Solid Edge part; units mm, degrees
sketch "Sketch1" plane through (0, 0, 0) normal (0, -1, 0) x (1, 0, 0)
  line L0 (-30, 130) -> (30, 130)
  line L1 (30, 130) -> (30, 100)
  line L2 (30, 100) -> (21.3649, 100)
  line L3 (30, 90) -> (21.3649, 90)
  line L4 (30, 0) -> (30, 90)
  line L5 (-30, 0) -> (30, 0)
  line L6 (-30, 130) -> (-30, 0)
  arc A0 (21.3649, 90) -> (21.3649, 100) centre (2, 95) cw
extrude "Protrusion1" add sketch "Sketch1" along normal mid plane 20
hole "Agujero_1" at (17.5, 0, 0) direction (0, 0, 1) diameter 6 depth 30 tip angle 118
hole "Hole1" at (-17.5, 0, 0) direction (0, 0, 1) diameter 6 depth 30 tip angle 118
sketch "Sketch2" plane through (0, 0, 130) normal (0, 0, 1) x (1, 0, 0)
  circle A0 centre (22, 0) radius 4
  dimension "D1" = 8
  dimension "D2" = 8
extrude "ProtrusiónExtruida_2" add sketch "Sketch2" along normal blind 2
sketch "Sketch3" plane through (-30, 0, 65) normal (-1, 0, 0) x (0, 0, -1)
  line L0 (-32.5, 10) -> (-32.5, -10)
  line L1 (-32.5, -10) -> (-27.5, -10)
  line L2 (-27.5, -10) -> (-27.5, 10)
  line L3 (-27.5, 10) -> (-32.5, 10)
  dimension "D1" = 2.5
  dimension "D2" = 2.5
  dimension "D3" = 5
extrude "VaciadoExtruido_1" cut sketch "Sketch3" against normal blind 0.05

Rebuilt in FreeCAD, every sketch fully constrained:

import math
import FreeCAD as App
import Part
import Sketcher
from FreeCAD import Vector
Q = App.Units.Quantity

doc = App.newDocument("Part")
params = doc.addObject("Spreadsheet::Sheet", "Params")
for row, (alias, value) in enumerate([
    ("sketch1_radius", "20 mm"),
    ("sketch1_width", "60 mm"),
    ("sketch1_height", "130 mm"),
    ("sketch1_height2", "90 mm"),
    ("sketch1_height3", "30 mm"),
    ("pad1_length", "20 mm"),
    ("sketch2_diameter", "6 mm"),
    ("hole_diameter", "6 mm"),
    ("hole_depth", "30 mm"),
    ("sketch3_diameter", "6 mm"),
    ("hole2_diameter", "6 mm"),
    ("hole2_depth", "30 mm"),
    ("sketch4_diameter", "8 mm"),
    ("pad2_length", "2 mm"),
    ("sketch5_width", "20 mm"),
    ("sketch5_height", "5 mm"),
    ("pocket1_length", "0.05 mm"),
], start=1):
    params.set(f"A{row}", alias)
    params.set(f"B{row}", "=" + value)
    params.setAlias(f"B{row}", alias)

body = doc.addObject("PartDesign::Body", "Body")

# Sketch on XZ plane
sketch1 = body.newObject("Sketcher::SketchObject", "Sketch")
sketch1.AttachmentSupport = (doc.getObject("XZ_Plane"), [""])
sketch1.MapMode = "FlatFace"
sketch1.addGeometry([
    Part.LineSegment(Vector(30, 130, 0), Vector(-30, 130, 0)),  # 0
    Part.LineSegment(Vector(-30, 130, 0), Vector(-30, 0, 0)),  # 1
    Part.LineSegment(Vector(-30, 0, 0), Vector(30, 0, 0)),  # 2
    Part.LineSegment(Vector(30, 0, 0), Vector(30, 90, 0)),  # 3
    Part.LineSegment(Vector(30, 90, 0), Vector(21, 90, 0)),  # 4
    Part.ArcOfCircle(Part.Circle(Vector(2, 95, 0), Vector(0, 0, 1), 20), math.radians(14), math.radians(346)),  # 5
    Part.LineSegment(Vector(21, 100, 0), Vector(30, 100, 0)),  # 6
    Part.LineSegment(Vector(30, 100, 0), Vector(30, 130, 0)),  # 7
], False)
sketch1.addConstraint([
    Sketcher.Constraint("Coincident", 0, 2, 1, 1),
    Sketcher.Constraint("Coincident", 1, 2, 2, 1),
    Sketcher.Constraint("Coincident", 2, 2, 3, 1),
    Sketcher.Constraint("Coincident", 3, 2, 4, 1),
    Sketcher.Constraint("Coincident", 4, 2, 5, 2),
    Sketcher.Constraint("Coincident", 5, 1, 6, 1),
    Sketcher.Constraint("Coincident", 6, 2, 7, 1),
    Sketcher.Constraint("Coincident", 7, 2, 0, 1),
    Sketcher.Constraint("Horizontal", 0),
    Sketcher.Constraint("Vertical", 1),
    Sketcher.Constraint("Horizontal", 2),
    Sketcher.Constraint("Vertical", 3),
    Sketcher.Constraint("Horizontal", 4),
    Sketcher.Constraint("Horizontal", 6),
    Sketcher.Constraint("Vertical", 7),
    Sketcher.Constraint("Symmetric", 1, 2, 2, 2, -1, 1),
    Sketcher.Constraint("Vertical", 4, 2, 5, 1),
    Sketcher.Constraint("Vertical", 3, 2, 6, 2),
    Sketcher.Constraint("Radius", 5, Q("20 mm")),
    Sketcher.Constraint("DistanceX", 0, 2, 0, 1, Q("60 mm")),
    Sketcher.Constraint("DistanceY", 1, 2, 1, 1, Q("130 mm")),
    Sketcher.Constraint("DistanceY", 3, 1, 3, 2, Q("90 mm")),
    Sketcher.Constraint("DistanceY", 7, 1, 7, 2, Q("30 mm")),
    Sketcher.Constraint("DistanceX", -1, 1, 5, 3, Q("2 mm")),
])
sketch1.setExpression("Constraints[18]", "Params.sketch1_radius")
sketch1.setExpression("Constraints[19]", "Params.sketch1_width")
sketch1.setExpression("Constraints[20]", "Params.sketch1_height")
sketch1.setExpression("Constraints[21]", "Params.sketch1_height2")
sketch1.setExpression("Constraints[22]", "Params.sketch1_height3")
pad1 = body.newObject("PartDesign::Pad", "Pad")
pad1.Profile = sketch1
pad1.setExpression("Length", "Params.pad1_length")
pad1.Midplane = True

# Sketch on XY plane
sketch2 = body.newObject("Sketcher::SketchObject", "Sketch001")
sketch2.AttachmentSupport = (doc.getObject("XY_Plane"), [""])
sketch2.MapMode = "FlatFace"
sketch2.addGeometry(Part.Circle(Vector(17.5, 0, 0), Vector(0, 0, 1), 3), False)
sketch2.addConstraint([
    Sketcher.Constraint("PointOnObject", 0, 3, -1),
    Sketcher.Constraint("Diameter", 0, Q("6 mm")),
    Sketcher.Constraint("DistanceX", -1, 1, 0, 3, Q("17.5 mm")),
])
sketch2.setExpression("Constraints[1]", "Params.sketch2_diameter")
doc.recompute()
hole = body.newObject("PartDesign::Hole", "Hole")
hole.Profile = sketch2
hole.ThreadType = "None"
hole.setExpression("Diameter", "Params.hole_diameter")
hole.DepthType = "Dimension"
hole.setExpression("Depth", "Params.hole_depth")
hole.DrillPoint = "Angled"
hole.DrillPointAngle = 118
hole.Reversed = True

# Sketch on XY plane
sketch3 = body.newObject("Sketcher::SketchObject", "Sketch002")
sketch3.AttachmentSupport = (doc.getObject("XY_Plane"), [""])
sketch3.MapMode = "FlatFace"
sketch3.addGeometry(Part.Circle(Vector(-17.5, 0, 0), Vector(0, 0, 1), 3), False)
sketch3.addConstraint([
    Sketcher.Constraint("PointOnObject", 0, 3, -1),
    Sketcher.Constraint("Diameter", 0, Q("6 mm")),
    Sketcher.Constraint("DistanceX", 0, 3, -1, 1, Q("17.5 mm")),
])
sketch3.setExpression("Constraints[1]", "Params.sketch3_diameter")
doc.recompute()
hole2 = body.newObject("PartDesign::Hole", "Hole001")
hole2.Profile = sketch3
hole2.ThreadType = "None"
hole2.setExpression("Diameter", "Params.hole2_diameter")
hole2.DepthType = "Dimension"
hole2.setExpression("Depth", "Params.hole2_depth")
hole2.DrillPoint = "Angled"
hole2.DrillPointAngle = 118
hole2.Reversed = True

# Sketch on XY plane
sketch4 = body.newObject("Sketcher::SketchObject", "Sketch003")
sketch4.AttachmentSupport = (doc.getObject("XY_Plane"), [""])
sketch4.MapMode = "FlatFace"
sketch4.AttachmentOffset = App.Placement(Vector(0, 0, 130), App.Rotation())
sketch4.addGeometry(Part.Circle(Vector(22, 0, 0), Vector(0, 0, 1), 4), False)
sketch4.addConstraint([
    Sketcher.Constraint("PointOnObject", 0, 3, -1),
    Sketcher.Constraint("Diameter", 0, Q("8 mm")),
    Sketcher.Constraint("DistanceX", -1, 1, 0, 3, Q("22 mm")),
])
sketch4.setExpression("Constraints[1]", "Params.sketch4_diameter")
pad2 = body.newObject("PartDesign::Pad", "Pad001")
pad2.Profile = sketch4
pad2.setExpression("Length", "Params.pad2_length")

# Sketch on YZ plane
sketch5 = body.newObject("Sketcher::SketchObject", "Sketch004")
sketch5.AttachmentSupport = (doc.getObject("YZ_Plane"), [""])
sketch5.MapMode = "FlatFace"
sketch5.AttachmentOffset = App.Placement(Vector(0, 0, -30), App.Rotation())
sketch5.addGeometry([
    Part.LineSegment(Vector(-10, 92, 0), Vector(-10, 98, 0)),
    Part.LineSegment(Vector(-10, 98, 0), Vector(10, 98, 0)),
    Part.LineSegment(Vector(10, 98, 0), Vector(10, 92, 0)),
    Part.LineSegment(Vector(10, 92, 0), Vector(-10, 92, 0)),
], False)
sketch5.addConstraint([
    Sketcher.Constraint("Coincident", 0, 2, 1, 1),
    Sketcher.Constraint("Coincident", 1, 2, 2, 1),
    Sketcher.Constraint("Coincident", 2, 2, 3, 1),
    Sketcher.Constraint("Coincident", 3, 2, 0, 1),
    Sketcher.Constraint("Vertical", 0),
    Sketcher.Constraint("Horizontal", 1),
    Sketcher.Constraint("Vertical", 2),
    Sketcher.Constraint("Horizontal", 3),
    Sketcher.Constraint("DistanceX", 1, 1, 1, 2, Q("20 mm")),
    Sketcher.Constraint("DistanceY", 0, 1, 0, 2, Q("5 mm")),
    Sketcher.Constraint("DistanceX", 0, 2, -1, 1, Q("10 mm")),
    Sketcher.Constraint("DistanceY", -1, 1, 0, 2, Q("97.5 mm")),
])
sketch5.setExpression("Constraints[8]", "Params.sketch5_width")
sketch5.setExpression("Constraints[9]", "Params.sketch5_height")
pocket1 = body.newObject("PartDesign::Pocket", "Pocket")
pocket1.Profile = sketch5
pocket1.setExpression("Length", "Params.pocket1_length")
pocket1.Reversed = True

doc.recompute()
